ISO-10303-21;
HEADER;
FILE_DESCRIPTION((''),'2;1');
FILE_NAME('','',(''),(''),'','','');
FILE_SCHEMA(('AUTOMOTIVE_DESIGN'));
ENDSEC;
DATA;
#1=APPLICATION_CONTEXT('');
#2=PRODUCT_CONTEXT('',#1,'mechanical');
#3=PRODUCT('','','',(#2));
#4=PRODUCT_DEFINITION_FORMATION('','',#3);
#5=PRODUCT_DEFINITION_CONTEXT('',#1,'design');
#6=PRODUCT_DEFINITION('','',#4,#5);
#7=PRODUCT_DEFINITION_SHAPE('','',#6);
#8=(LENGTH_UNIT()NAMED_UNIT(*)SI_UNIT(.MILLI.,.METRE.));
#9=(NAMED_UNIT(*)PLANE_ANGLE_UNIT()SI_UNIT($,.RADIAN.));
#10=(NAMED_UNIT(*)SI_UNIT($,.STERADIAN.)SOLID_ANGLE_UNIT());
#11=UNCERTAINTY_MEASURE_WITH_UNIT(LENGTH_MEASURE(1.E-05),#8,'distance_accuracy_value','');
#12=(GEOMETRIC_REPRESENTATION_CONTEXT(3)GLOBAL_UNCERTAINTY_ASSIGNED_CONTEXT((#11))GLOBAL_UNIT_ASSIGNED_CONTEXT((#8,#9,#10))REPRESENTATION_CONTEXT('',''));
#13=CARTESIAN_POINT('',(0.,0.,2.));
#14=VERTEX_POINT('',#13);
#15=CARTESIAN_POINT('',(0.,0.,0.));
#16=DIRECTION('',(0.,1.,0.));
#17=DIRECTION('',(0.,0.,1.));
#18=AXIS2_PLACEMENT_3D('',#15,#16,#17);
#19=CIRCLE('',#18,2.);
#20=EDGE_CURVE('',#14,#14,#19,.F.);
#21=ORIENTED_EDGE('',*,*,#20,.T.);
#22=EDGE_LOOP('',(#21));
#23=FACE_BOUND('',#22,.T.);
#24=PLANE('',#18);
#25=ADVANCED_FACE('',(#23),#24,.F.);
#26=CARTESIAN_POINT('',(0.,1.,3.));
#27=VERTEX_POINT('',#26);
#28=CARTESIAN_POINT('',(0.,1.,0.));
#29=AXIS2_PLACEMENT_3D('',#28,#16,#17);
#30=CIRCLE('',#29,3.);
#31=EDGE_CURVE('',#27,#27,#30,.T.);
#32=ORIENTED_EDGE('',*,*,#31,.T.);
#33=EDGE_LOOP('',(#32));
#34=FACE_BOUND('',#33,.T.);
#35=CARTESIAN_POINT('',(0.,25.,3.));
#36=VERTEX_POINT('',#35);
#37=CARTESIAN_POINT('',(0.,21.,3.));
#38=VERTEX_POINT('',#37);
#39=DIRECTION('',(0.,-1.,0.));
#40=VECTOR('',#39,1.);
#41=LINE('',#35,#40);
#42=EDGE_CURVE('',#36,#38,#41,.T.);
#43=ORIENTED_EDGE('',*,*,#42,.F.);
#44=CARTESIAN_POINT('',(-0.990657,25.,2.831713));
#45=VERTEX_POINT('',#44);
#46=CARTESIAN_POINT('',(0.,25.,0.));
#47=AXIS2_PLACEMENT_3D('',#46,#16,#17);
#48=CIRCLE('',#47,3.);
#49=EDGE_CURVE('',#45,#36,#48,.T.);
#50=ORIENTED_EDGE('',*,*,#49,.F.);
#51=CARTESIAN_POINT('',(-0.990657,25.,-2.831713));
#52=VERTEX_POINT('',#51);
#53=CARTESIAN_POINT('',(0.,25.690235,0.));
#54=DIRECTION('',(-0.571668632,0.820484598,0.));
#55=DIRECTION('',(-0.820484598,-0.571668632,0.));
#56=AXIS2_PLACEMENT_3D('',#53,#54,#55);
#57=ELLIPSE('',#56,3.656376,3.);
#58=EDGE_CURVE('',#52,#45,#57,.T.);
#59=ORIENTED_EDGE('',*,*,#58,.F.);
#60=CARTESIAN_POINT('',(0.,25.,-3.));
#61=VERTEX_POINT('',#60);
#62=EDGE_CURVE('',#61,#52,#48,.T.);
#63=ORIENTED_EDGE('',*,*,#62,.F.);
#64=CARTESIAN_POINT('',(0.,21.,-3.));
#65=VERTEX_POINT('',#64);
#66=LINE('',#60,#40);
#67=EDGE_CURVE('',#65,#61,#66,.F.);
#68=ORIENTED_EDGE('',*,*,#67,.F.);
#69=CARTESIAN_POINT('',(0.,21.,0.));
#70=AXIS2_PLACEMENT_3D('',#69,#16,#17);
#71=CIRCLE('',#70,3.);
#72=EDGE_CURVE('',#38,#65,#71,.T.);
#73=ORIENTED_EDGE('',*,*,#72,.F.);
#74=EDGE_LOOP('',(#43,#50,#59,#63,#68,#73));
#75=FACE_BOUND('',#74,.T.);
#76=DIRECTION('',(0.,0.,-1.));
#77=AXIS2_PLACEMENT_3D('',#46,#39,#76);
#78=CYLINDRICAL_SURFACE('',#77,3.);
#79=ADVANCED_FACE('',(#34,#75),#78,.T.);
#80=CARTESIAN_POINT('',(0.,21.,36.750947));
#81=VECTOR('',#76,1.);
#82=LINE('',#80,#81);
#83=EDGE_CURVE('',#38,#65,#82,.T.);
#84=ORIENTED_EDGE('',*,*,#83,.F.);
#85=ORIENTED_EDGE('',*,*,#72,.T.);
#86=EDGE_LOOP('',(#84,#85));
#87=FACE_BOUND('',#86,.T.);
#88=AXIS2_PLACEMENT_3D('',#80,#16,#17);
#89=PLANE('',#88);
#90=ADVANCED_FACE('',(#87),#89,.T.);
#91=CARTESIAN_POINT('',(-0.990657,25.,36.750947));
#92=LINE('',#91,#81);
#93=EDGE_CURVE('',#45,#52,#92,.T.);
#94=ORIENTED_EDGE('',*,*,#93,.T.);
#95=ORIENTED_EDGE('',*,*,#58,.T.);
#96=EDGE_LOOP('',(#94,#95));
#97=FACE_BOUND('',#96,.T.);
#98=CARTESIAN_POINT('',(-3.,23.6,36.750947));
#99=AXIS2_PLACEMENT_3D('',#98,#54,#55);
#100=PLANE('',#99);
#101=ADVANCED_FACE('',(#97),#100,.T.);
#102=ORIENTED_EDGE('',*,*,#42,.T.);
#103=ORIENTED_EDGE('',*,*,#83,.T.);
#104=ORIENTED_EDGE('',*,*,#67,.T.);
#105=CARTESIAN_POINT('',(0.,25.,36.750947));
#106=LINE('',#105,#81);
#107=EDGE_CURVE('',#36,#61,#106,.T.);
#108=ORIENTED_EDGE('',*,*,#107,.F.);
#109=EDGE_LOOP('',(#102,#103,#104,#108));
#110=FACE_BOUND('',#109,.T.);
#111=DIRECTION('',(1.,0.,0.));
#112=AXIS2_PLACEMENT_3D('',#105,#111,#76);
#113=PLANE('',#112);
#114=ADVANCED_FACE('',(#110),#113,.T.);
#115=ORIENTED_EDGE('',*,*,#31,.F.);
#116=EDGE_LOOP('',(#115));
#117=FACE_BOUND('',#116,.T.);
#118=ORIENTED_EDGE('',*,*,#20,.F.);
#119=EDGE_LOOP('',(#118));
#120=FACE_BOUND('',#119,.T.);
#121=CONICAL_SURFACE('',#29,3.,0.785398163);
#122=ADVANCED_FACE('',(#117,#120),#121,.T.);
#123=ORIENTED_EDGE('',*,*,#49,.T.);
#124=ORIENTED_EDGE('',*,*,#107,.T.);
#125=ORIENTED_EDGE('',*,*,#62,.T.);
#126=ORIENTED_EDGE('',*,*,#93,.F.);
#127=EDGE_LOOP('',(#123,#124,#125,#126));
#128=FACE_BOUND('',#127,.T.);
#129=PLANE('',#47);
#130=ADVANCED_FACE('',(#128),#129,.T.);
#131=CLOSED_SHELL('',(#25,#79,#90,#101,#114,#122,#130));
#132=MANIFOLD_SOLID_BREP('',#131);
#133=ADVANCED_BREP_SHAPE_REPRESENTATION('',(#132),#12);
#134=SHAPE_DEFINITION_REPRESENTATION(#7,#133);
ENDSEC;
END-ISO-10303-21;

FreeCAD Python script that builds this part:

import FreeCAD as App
import Part
import Sketcher
Q = App.Units.Quantity


def edges_at(feature, points):
    """Names of the edges that pass closest to the given points."""
    edges = feature.Shape.Edges
    near = lambda p: min(range(len(edges)), key=lambda i: edges[i].distToShape(Part.Vertex(*p))[0])
    return sorted({f"Edge{near(p) + 1}" for p in points})


def add_polygon(sketch, points):
    """Adds a closed chain of lines whose ends are joined by coincident constraints."""
    first, n = sketch.GeometryCount, len(points)
    for a, b in zip(points, points[1:] + points[:1]):
        sketch.addGeometry(Part.LineSegment(App.Vector(*a, 0), App.Vector(*b, 0)), False)
    for i in range(n):
        sketch.addConstraint(Sketcher.Constraint("Coincident", first + i, 2, first + (i + 1) % n, 1))

doc = App.newDocument("Part")
body = doc.addObject("PartDesign::Body", "Body")

# Sketch on XZ plane
sketch1 = doc.addObject("Sketcher::SketchObject", "Sketch")
body.addObject(sketch1)
sketch1.AttachmentSupport = (doc.XZ_Plane, [""])
sketch1.MapMode = "FlatFace"
sketch1.addGeometry(Part.Circle(App.Vector(0, 0, 0), App.Vector(0, 0, 1), 3), False)
sketch1.addConstraint(Sketcher.Constraint("Coincident", 0, 3, -1, 1))
sketch1.addConstraint(Sketcher.Constraint("Diameter", 0, Q("6 mm")))
pad1 = doc.addObject("PartDesign::Pad", "Pad")
body.addObject(pad1)
pad1.Profile = sketch1
pad1.Length = 25
pad1.Reversed = True
doc.recompute()

chamfer = doc.addObject("PartDesign::Chamfer", "Chamfer")
body.addObject(chamfer)
chamfer.Base = (pad1, edges_at(pad1, [(0, 0, -3)]))
chamfer.Size = 1

# Sketch on XY plane
sketch2 = doc.addObject("Sketcher::SketchObject", "Sketch001")
body.addObject(sketch2)
sketch2.AttachmentSupport = (doc.XY_Plane, [""])
sketch2.MapMode = "FlatFace"
add_polygon(sketch2, [(-52.748448, -11.061988), (-3, 23.6), (-0.990657, 25), (48.757791, 59.661988), (-20.566185, 159.158884), (-122.072424, 88.434908)])  # lines 0-5
sketch2.addConstraint(Sketcher.Constraint("Parallel", 0, 1))
sketch2.addConstraint(Sketcher.Constraint("Parallel", 1, 2))
sketch2.addConstraint(Sketcher.Constraint("Perpendicular", 2, 3))
sketch2.addConstraint(Sketcher.Constraint("Perpendicular", 3, 4))
sketch2.addConstraint(Sketcher.Constraint("Perpendicular", 4, 5))
sketch2.addConstraint(Sketcher.Constraint("Equal", 0, 2))
sketch2.addConstraint(Sketcher.Constraint("DistanceX", 0, 2, -1, 1, Q("3 mm")))
sketch2.addConstraint(Sketcher.Constraint("DistanceY", -1, 1, 1, 2, Q("25 mm")))
sketch2.addConstraint(Sketcher.Constraint("DistanceY", -1, 1, 0, 2, Q("23.6 mm")))
sketch2.addConstraint(Sketcher.Constraint("Distance", 1, Q("2.448971 mm")))
sketch2.addConstraint(Sketcher.Constraint("DistanceX", -1, 1, 2, 2, Q("48.757791 mm")))
sketch2.addConstraint(Sketcher.Constraint("DistanceY", -1, 1, 4, 2, Q("88.434908 mm")))
pocket1 = doc.addObject("PartDesign::Pocket", "Pocket")
body.addObject(pocket1)
pocket1.Profile = sketch2
pocket1.Type = "ThroughAll"
pocket1.Midplane = True

# Sketch on XY plane
sketch3 = doc.addObject("Sketcher::SketchObject", "Sketch002")
body.addObject(sketch3)
sketch3.AttachmentSupport = (doc.XY_Plane, [""])
sketch3.MapMode = "FlatFace"
add_polygon(sketch3, [(0, 85.358713), (0, 21), (63.358713, 21), (149.384539, 105.689164), (86.025825, 170.047877)])  # lines 0-4
sketch3.addConstraint(Sketcher.Constraint("Vertical", 0))
sketch3.addConstraint(Sketcher.Constraint("Horizontal", 1))
sketch3.addConstraint(Sketcher.Constraint("PointOnObject", 0, 2, -2))
sketch3.addConstraint(Sketcher.Constraint("Perpendicular", 2, 3))
sketch3.addConstraint(Sketcher.Constraint("Perpendicular", 3, 4))
sketch3.addConstraint(Sketcher.Constraint("Equal", 2, 4))
sketch3.addConstraint(Sketcher.Constraint("DistanceY", -1, 1, 0, 2, Q("21 mm")))
sketch3.addConstraint(Sketcher.Constraint("DistanceX", 1, 1, 1, 2, Q("63.358713 mm")))
sketch3.addConstraint(Sketcher.Constraint("DistanceY", 0, 2, 0, 1, Q("64.358713 mm")))
sketch3.addConstraint(Sketcher.Constraint("DistanceX", -1, 1, 2, 2, Q("149.384539 mm")))
pocket2 = doc.addObject("PartDesign::Pocket", "Pocket001")
body.addObject(pocket2)
pocket2.Profile = sketch3
pocket2.Type = "ThroughAll"
pocket2.Midplane = True

doc.recompute()
